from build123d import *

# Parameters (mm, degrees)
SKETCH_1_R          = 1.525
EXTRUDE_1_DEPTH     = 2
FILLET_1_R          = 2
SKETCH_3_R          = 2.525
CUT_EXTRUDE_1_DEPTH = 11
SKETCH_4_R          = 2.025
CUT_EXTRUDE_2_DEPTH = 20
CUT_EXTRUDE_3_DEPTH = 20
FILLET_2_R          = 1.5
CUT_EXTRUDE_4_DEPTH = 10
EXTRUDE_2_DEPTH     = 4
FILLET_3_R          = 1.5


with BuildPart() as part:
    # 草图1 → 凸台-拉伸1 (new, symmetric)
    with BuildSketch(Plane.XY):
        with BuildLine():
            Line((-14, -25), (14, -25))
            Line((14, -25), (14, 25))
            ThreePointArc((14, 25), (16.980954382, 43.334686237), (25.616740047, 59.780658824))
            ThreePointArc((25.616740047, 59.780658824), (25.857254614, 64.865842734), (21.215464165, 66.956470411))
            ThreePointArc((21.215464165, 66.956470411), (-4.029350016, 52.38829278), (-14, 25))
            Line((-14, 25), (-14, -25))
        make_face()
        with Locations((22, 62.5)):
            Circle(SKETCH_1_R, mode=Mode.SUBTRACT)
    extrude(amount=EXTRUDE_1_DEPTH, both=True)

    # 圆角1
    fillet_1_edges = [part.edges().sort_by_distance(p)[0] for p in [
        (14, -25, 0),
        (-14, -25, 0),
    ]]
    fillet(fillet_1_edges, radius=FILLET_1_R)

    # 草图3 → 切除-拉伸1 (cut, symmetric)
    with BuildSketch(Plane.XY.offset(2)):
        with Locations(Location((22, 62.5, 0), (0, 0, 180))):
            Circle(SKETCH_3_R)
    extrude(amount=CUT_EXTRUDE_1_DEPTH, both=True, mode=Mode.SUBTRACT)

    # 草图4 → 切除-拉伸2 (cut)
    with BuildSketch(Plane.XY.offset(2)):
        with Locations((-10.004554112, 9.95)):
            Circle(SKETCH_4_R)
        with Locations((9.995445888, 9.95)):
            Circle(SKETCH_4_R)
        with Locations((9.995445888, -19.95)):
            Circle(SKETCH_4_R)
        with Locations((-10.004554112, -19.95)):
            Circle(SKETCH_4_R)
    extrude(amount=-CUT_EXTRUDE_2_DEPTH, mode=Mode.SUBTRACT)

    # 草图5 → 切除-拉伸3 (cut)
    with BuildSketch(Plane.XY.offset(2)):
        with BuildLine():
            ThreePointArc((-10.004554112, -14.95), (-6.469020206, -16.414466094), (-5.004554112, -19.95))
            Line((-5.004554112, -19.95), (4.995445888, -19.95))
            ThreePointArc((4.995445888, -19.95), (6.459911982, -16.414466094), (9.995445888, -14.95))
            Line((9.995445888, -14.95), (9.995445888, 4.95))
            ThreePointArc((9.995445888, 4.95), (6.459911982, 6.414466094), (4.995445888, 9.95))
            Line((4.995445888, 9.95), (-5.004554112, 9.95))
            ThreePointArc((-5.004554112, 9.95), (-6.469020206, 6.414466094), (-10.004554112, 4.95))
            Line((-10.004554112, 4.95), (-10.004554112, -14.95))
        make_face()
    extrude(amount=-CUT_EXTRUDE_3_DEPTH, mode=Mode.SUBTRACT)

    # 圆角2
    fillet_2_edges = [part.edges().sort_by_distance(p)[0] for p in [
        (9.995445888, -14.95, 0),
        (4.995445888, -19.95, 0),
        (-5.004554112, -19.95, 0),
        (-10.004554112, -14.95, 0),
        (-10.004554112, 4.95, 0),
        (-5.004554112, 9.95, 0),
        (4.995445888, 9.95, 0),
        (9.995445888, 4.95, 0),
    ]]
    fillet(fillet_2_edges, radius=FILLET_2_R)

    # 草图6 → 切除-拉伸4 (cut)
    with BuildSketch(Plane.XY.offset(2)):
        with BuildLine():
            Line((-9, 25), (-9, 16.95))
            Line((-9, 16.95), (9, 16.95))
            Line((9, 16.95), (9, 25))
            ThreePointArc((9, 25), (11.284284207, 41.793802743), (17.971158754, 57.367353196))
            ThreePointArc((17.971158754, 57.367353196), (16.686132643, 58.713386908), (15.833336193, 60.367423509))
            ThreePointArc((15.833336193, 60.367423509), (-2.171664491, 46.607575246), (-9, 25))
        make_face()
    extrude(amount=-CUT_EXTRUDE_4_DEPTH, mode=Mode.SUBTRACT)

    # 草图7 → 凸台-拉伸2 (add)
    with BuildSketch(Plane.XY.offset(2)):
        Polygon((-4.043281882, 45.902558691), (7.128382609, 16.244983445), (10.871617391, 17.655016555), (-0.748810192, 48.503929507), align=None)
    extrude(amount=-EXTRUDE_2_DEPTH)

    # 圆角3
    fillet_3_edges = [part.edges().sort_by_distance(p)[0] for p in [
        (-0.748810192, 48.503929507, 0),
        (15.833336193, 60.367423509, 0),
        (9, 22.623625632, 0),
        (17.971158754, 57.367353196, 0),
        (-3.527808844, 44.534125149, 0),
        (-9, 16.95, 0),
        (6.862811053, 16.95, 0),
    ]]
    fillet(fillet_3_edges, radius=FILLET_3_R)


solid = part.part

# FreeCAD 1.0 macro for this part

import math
import FreeCAD as App
import Part
import Sketcher
Q = App.Units.Quantity


def edges_at(feature, points):
    """Names of the edges that pass closest to the given points."""
    edges = feature.Shape.Edges
    near = lambda p: min(range(len(edges)), key=lambda i: edges[i].distToShape(Part.Vertex(*p))[0])
    return sorted({f"Edge{near(p) + 1}" for p in points})

doc = App.newDocument("Part")
body = doc.addObject("PartDesign::Body", "Body")

sketch1 = doc.addObject("Sketcher::SketchObject", "Sketch")
body.addObject(sketch1)
sketch1.AttachmentSupport = (doc.XY_Plane, [""])
sketch1.MapMode = "FlatFace"
sketch1.addGeometry([
    Part.LineSegment(App.Vector(-14, -25, 0), App.Vector(14, -25, 0)),
    Part.LineSegment(App.Vector(14, -25, 0), App.Vector(14, 25, 0)),
    Part.ArcOfCircle(Part.Circle(App.Vector(71.875225, 25, 0), App.Vector(0, 0, 1), 57.875225), math.radians(143.061361), math.radians(180)),
    Part.ArcOfCircle(Part.Circle(App.Vector(22, 62.5, 0), App.Vector(0, 0, 1), 4.525), math.radians(-36.938639), math.radians(99.984286)),
    Part.ArcOfCircle(Part.Circle(App.Vector(28.601658, 25, 0), App.Vector(0, 0, 1), 42.601658), math.radians(99.984286), math.radians(180)),
    Part.LineSegment(App.Vector(-14, 25, 0), App.Vector(-14, -25, 0)),
    Part.Circle(App.Vector(22, 62.5, 0), App.Vector(0, 0, 1), 1.525),
], False)
sketch1.addConstraint([
    Sketcher.Constraint("Coincident", 0, 2, 1, 1),
    Sketcher.Constraint("Tangent", 1, 2, 2, 2),
    Sketcher.Constraint("Tangent", 2, 1, 3, 1),
    Sketcher.Constraint("Tangent", 3, 2, 4, 1),
    Sketcher.Constraint("Tangent", 4, 2, 5, 1),
    Sketcher.Constraint("Coincident", 5, 2, 0, 1),
    Sketcher.Constraint("Horizontal", 0),
    Sketcher.Constraint("Vertical", 1),
    Sketcher.Constraint("Vertical", 5),
    Sketcher.Constraint("Coincident", 6, 3, 3, 3),
    Sketcher.Constraint("Symmetric", 0, 2, 4, 2, -1, 1),
    Sketcher.Constraint("Horizontal", 2, 3, 4, 3),
    Sketcher.Constraint("Diameter", 6, Q("3.05 mm")),
    Sketcher.Constraint("DistanceX", 0, 1, 0, 2, Q("28 mm")),
    Sketcher.Constraint("DistanceY", 1, 1, 1, 2, Q("50 mm")),
    Sketcher.Constraint("DistanceX", -1, 1, 3, 3, Q("22 mm")),
    Sketcher.Constraint("Radius", 3, Q("4.525 mm")),
    Sketcher.Constraint("DistanceY", -1, 1, 3, 3, Q("62.5 mm")),
])
pad1 = doc.addObject("PartDesign::Pad", "Pad")
body.addObject(pad1)
pad1.Profile = sketch1
pad1.Length = 4
pad1.Midplane = True
doc.recompute()

fillet = doc.addObject("PartDesign::Fillet", "Fillet")
body.addObject(fillet)
fillet.Base = (pad1, edges_at(pad1, [(14, -25, 0), (-14, -25, 0)]))
fillet.Radius = 2

sketch2 = doc.addObject("Sketcher::SketchObject", "Sketch001")
body.addObject(sketch2)
sketch2.AttachmentSupport = (doc.XY_Plane, [""])
sketch2.MapMode = "FlatFace"
sketch2.AttachmentOffset = App.Placement(App.Vector(0, 0, 2), App.Rotation())
sketch2.addGeometry(Part.Circle(App.Vector(22, 62.5, 0), App.Vector(0, 0, 1), 2.525), False)
sketch2.addConstraint([
    Sketcher.Constraint("Diameter", 0, Q("5.05 mm")),
    Sketcher.Constraint("DistanceX", -1, 1, 0, 3, Q("22 mm")),
    Sketcher.Constraint("DistanceY", -1, 1, 0, 3, Q("62.5 mm")),
])
pocket1 = doc.addObject("PartDesign::Pocket", "Pocket")
body.addObject(pocket1)
pocket1.Profile = sketch2
pocket1.Length = 22
pocket1.Midplane = True

sketch3 = doc.addObject("Sketcher::SketchObject", "Sketch002")
body.addObject(sketch3)
sketch3.AttachmentSupport = (doc.XY_Plane, [""])
sketch3.MapMode = "FlatFace"
sketch3.AttachmentOffset = App.Placement(App.Vector(0, 0, 2), App.Rotation())
sketch3.addGeometry([
    Part.Circle(App.Vector(-10.004554, 9.95, 0), App.Vector(0, 0, 1), 2.025),
    Part.Circle(App.Vector(9.995446, 9.95, 0), App.Vector(0, 0, 1), 2.025),
    Part.Circle(App.Vector(9.995446, -19.95, 0), App.Vector(0, 0, 1), 2.025),
    Part.Circle(App.Vector(-10.004554, -19.95, 0), App.Vector(0, 0, 1), 2.025),
], False)
sketch3.addConstraint([
    Sketcher.Constraint("Equal", 0, 1),
    Sketcher.Constraint("Equal", 1, 2),
    Sketcher.Constraint("Equal", 2, 3),
    Sketcher.Constraint("Horizontal", 0, 3, 1, 3),
    Sketcher.Constraint("Horizontal", 2, 3, 3, 3),
    Sketcher.Constraint("Vertical", 1, 3, 2, 3),
    Sketcher.Constraint("Vertical", 0, 3, 3, 3),
    Sketcher.Constraint("Diameter", 0, Q("4.05 mm")),
    Sketcher.Constraint("DistanceX", 0, 3, 1, 3, Q("20 mm")),
    Sketcher.Constraint("DistanceY", 2, 3, 1, 3, Q("29.9 mm")),
    Sketcher.Constraint("DistanceY", -1, 1, 0, 3, Q("9.95 mm")),
    Sketcher.Constraint("DistanceX", 0, 3, -1, 1, Q("10.004554 mm")),
])
pocket2 = doc.addObject("PartDesign::Pocket", "Pocket001")
body.addObject(pocket2)
pocket2.Profile = sketch3
pocket2.Length = 20

sketch4 = doc.addObject("Sketcher::SketchObject", "Sketch003")
body.addObject(sketch4)
sketch4.AttachmentSupport = (doc.XY_Plane, [""])
sketch4.MapMode = "FlatFace"
sketch4.AttachmentOffset = App.Placement(App.Vector(0, 0, 2), App.Rotation())
sketch4.addGeometry([
    Part.ArcOfCircle(Part.Circle(App.Vector(-10.004554, -19.95, 0), App.Vector(0, 0, 1), 5), math.radians(0), math.radians(90)),
    Part.LineSegment(App.Vector(-5.004554, -19.95, 0), App.Vector(4.995446, -19.95, 0)),
    Part.ArcOfCircle(Part.Circle(App.Vector(9.995446, -19.95, 0), App.Vector(0, 0, 1), 5), math.radians(90), math.radians(180)),
    Part.LineSegment(App.Vector(9.995446, -14.95, 0), App.Vector(9.995446, 4.95, 0)),
    Part.ArcOfCircle(Part.Circle(App.Vector(9.995446, 9.95, 0), App.Vector(0, 0, 1), 5), math.radians(180), math.radians(270)),
    Part.LineSegment(App.Vector(4.995446, 9.95, 0), App.Vector(-5.004554, 9.95, 0)),
    Part.ArcOfCircle(Part.Circle(App.Vector(-10.004554, 9.95, 0), App.Vector(0, 0, 1), 5), math.radians(-90), math.radians(0)),
    Part.LineSegment(App.Vector(-10.004554, 4.95, 0), App.Vector(-10.004554, -14.95, 0)),
], False)
sketch4.addConstraint([
    Sketcher.Constraint("Coincident", 0, 1, 1, 1),
    Sketcher.Constraint("Coincident", 1, 2, 2, 2),
    Sketcher.Constraint("Coincident", 2, 1, 3, 1),
    Sketcher.Constraint("Coincident", 3, 2, 4, 2),
    Sketcher.Constraint("Coincident", 4, 1, 5, 1),
    Sketcher.Constraint("Coincident", 5, 2, 6, 2),
    Sketcher.Constraint("Coincident", 6, 1, 7, 1),
    Sketcher.Constraint("Coincident", 7, 2, 0, 2),
    Sketcher.Constraint("Horizontal", 1),
    Sketcher.Constraint("Vertical", 3),
    Sketcher.Constraint("Horizontal", 5),
    Sketcher.Constraint("Vertical", 7),
    Sketcher.Constraint("Equal", 0, 2),
    Sketcher.Constraint("Equal", 2, 4),
    Sketcher.Constraint("Equal", 4, 6),
    Sketcher.Constraint("Horizontal", 0, 3, 2, 3),
    Sketcher.Constraint("Horizontal", 4, 3, 6, 3),
    Sketcher.Constraint("Horizontal", 2, 3, 0, 1),
    Sketcher.Constraint("Horizontal", 6, 3, 4, 1),
    Sketcher.Constraint("Vertical", 2, 3, 4, 3),
    Sketcher.Constraint("Vertical", 0, 3, 6, 3),
    Sketcher.Constraint("Vertical", 4, 3, 2, 1),
    Sketcher.Constraint("Vertical", 0, 3, 6, 1),
    Sketcher.Constraint("Radius", 0, Q("5 mm")),
    Sketcher.Constraint("DistanceX", 1, 1, 1, 2, Q("10 mm")),
    Sketcher.Constraint("DistanceY", 3, 1, 3, 2, Q("19.9 mm")),
    Sketcher.Constraint("DistanceY", 0, 3, -1, 1, Q("19.95 mm")),
    Sketcher.Constraint("DistanceX", 0, 3, -1, 1, Q("10.004554 mm")),
])
pocket3 = doc.addObject("PartDesign::Pocket", "Pocket002")
body.addObject(pocket3)
pocket3.Profile = sketch4
pocket3.Length = 20
doc.recompute()

fillet2 = doc.addObject("PartDesign::Fillet", "Fillet001")
body.addObject(fillet2)
fillet2.Base = (pocket3, edges_at(pocket3, [
    (9.995, -14.95, 0),
    (4.995, -19.95, 0),
    (-5.005, -19.95, 0),
    (-10.005, -14.95, 0),
    (-10.005, 4.95, 0),
    (-5.005, 9.95, 0),
    (4.995, 9.95, 0),
    (9.995, 4.95, 0),
]))
fillet2.Radius = 1.5

sketch5 = doc.addObject("Sketcher::SketchObject", "Sketch004")
body.addObject(sketch5)
sketch5.AttachmentSupport = (doc.XY_Plane, [""])
sketch5.MapMode = "FlatFace"
sketch5.AttachmentOffset = App.Placement(App.Vector(0, 0, 2), App.Rotation())
sketch5.addGeometry([
    Part.LineSegment(App.Vector(-9, 25, 0), App.Vector(-9, 16.95, 0)),
    Part.LineSegment(App.Vector(-9, 16.95, 0), App.Vector(9, 16.95, 0)),
    Part.LineSegment(App.Vector(9, 16.95, 0), App.Vector(9, 25, 0)),
    Part.ArcOfCircle(Part.Circle(App.Vector(71.875225, 25, 0), App.Vector(0, 0, 1), 62.875225), math.radians(149.016776), math.radians(180)),
    Part.ArcOfCircle(Part.Circle(App.Vector(22, 62.5, 0), App.Vector(0, 0, 1), 6.525), math.radians(-160.923418), math.radians(-128.129935)),
    Part.ArcOfCircle(Part.Circle(App.Vector(28.601658, 25, 0), App.Vector(0, 0, 1), 37.601658), math.radians(109.85056), math.radians(180)),
], False)
sketch5.addConstraint([
    Sketcher.Constraint("Coincident", 0, 2, 1, 1),
    Sketcher.Constraint("Coincident", 1, 2, 2, 1),
    Sketcher.Constraint("Tangent", 2, 2, 3, 2),
    Sketcher.Constraint("Coincident", 3, 1, 4, 2),
    Sketcher.Constraint("Coincident", 4, 1, 5, 1),
    Sketcher.Constraint("Tangent", 5, 2, 0, 1),
    Sketcher.Constraint("Vertical", 0),
    Sketcher.Constraint("Horizontal", 1),
    Sketcher.Constraint("Vertical", 2),
    Sketcher.Constraint("Symmetric", 2, 2, 5, 2, -2),
    Sketcher.Constraint("DistanceX", 1, 1, 1, 2, Q("18 mm")),
    Sketcher.Constraint("DistanceY", -1, 1, 3, 3, Q("25 mm")),
    Sketcher.Constraint("DistanceX", -1, 1, 4, 3, Q("22 mm")),
    Sketcher.Constraint("Radius", 4, Q("6.525 mm")),
    Sketcher.Constraint("DistanceY", 0, 2, 0, 1, Q("8.05 mm")),
    Sketcher.Constraint("DistanceY", -1, 1, 4, 3, Q("62.5 mm")),
    Sketcher.Constraint("Radius", 5, Q("37.601658 mm")),
    Sketcher.Constraint("Radius", 3, Q("62.875225 mm")),
])
pocket4 = doc.addObject("PartDesign::Pocket", "Pocket003")
body.addObject(pocket4)
pocket4.Profile = sketch5
pocket4.Length = 10

sketch6 = doc.addObject("Sketcher::SketchObject", "Sketch005")
body.addObject(sketch6)
sketch6.AttachmentSupport = (doc.XY_Plane, [""])
sketch6.MapMode = "FlatFace"
sketch6.AttachmentOffset = App.Placement(App.Vector(0, 0, 2), App.Rotation())
sketch6.addGeometry([
    Part.LineSegment(App.Vector(-4.043282, 45.902559, 0), App.Vector(7.128383, 16.244983, 0)),
    Part.LineSegment(App.Vector(7.128383, 16.244983, 0), App.Vector(10.871617, 17.655017, 0)),
    Part.LineSegment(App.Vector(10.871617, 17.655017, 0), App.Vector(-0.74881, 48.50393, 0)),
    Part.LineSegment(App.Vector(-0.74881, 48.50393, 0), App.Vector(-4.043282, 45.902559, 0)),
], False)
sketch6.addConstraint([
    Sketcher.Constraint("Coincident", 0, 2, 1, 1),
    Sketcher.Constraint("Coincident", 1, 2, 2, 1),
    Sketcher.Constraint("Coincident", 2, 2, 3, 1),
    Sketcher.Constraint("Coincident", 3, 2, 0, 1),
    Sketcher.Constraint("Perpendicular", 0, 1),
    Sketcher.Constraint("Perpendicular", 1, 2),
    Sketcher.Constraint("Distance", 1, Q("4 mm")),
    Sketcher.Constraint("Distance", 3, Q("4.197699 mm")),
    Sketcher.Constraint("DistanceX", 3, 2, 1, 2, Q("14.914899 mm")),
    Sketcher.Constraint("Distance", 0, Q("31.691921 mm")),
    Sketcher.Constraint("DistanceX", 2, 2, -1, 1, Q("0.74881 mm")),
    Sketcher.Constraint("DistanceY", -1, 1, 2, 2, Q("48.50393 mm")),
])
pad2 = doc.addObject("PartDesign::Pad", "Pad001")
body.addObject(pad2)
pad2.Profile = sketch6
pad2.Length = 4
pad2.Reversed = True
doc.recompute()

fillet3 = doc.addObject("PartDesign::Fillet", "Fillet002")
body.addObject(fillet3)
fillet3.Base = (pad2, edges_at(pad2, [
    (-0.749, 48.504, 0),
    (15.833, 60.367, 0),
    (9, 22.624, 0),
    (17.971, 57.367, 0),
    (-3.528, 44.534, 0),
    (-9, 16.95, 0),
    (6.863, 16.95, 0),
]))
fillet3.Radius = 1.5

doc.recompute()
